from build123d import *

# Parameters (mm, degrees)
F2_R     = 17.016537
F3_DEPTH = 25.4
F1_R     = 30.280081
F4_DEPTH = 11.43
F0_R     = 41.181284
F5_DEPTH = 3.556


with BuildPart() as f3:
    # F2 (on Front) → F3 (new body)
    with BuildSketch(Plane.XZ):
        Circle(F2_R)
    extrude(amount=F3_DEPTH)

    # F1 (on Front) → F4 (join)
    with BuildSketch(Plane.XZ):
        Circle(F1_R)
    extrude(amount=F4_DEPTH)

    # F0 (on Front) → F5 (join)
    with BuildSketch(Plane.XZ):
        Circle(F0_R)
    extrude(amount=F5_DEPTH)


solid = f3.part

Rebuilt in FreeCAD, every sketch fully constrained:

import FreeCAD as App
import Part
import Sketcher

V = App.Vector
Q = App.Units.Quantity

doc = App.newDocument("Part")
body = doc.addObject("PartDesign::Body", "Body")

# Sketch on XZ plane
sketch1 = doc.addObject("Sketcher::SketchObject", "Sketch")
body.addObject(sketch1)
sketch1.AttachmentSupport = (doc.XZ_Plane, [""])
sketch1.MapMode = "FlatFace"
sketch1.addGeometry(Part.Circle(V(0, 0, 0), V(0, 0, 1), 17.016537), False)
sketch1.addConstraint(Sketcher.Constraint("Coincident", 0, 3, -1, 1))
sketch1.addConstraint(Sketcher.Constraint("Diameter", 0, Q("34.033074 mm")))
pad1 = doc.addObject("PartDesign::Pad", "Pad")
body.addObject(pad1)
pad1.Profile = sketch1
pad1.Length = Q("1 in")

# Sketch on XZ plane
sketch2 = doc.addObject("Sketcher::SketchObject", "Sketch001")
body.addObject(sketch2)
sketch2.AttachmentSupport = (doc.XZ_Plane, [""])
sketch2.MapMode = "FlatFace"
sketch2.addGeometry(Part.Circle(V(0, 0, 0), V(0, 0, 1), 30.280081), False)
sketch2.addConstraint(Sketcher.Constraint("Coincident", 0, 3, -1, 1))
sketch2.addConstraint(Sketcher.Constraint("Diameter", 0, Q("60.560162 mm")))
pad2 = doc.addObject("PartDesign::Pad", "Pad001")
body.addObject(pad2)
pad2.Profile = sketch2
pad2.Length = Q("0.45 in")

# Sketch on XZ plane
sketch3 = doc.addObject("Sketcher::SketchObject", "Sketch002")
body.addObject(sketch3)
sketch3.AttachmentSupport = (doc.XZ_Plane, [""])
sketch3.MapMode = "FlatFace"
sketch3.addGeometry(Part.Circle(V(0, 0, 0), V(0, 0, 1), 41.181284), False)
sketch3.addConstraint(Sketcher.Constraint("Coincident", 0, 3, -1, 1))
sketch3.addConstraint(Sketcher.Constraint("Diameter", 0, Q("82.362568 mm")))
pad3 = doc.addObject("PartDesign::Pad", "Pad002")
body.addObject(pad3)
pad3.Profile = sketch3
pad3.Length = Q("0.14 in")

doc.recompute()
